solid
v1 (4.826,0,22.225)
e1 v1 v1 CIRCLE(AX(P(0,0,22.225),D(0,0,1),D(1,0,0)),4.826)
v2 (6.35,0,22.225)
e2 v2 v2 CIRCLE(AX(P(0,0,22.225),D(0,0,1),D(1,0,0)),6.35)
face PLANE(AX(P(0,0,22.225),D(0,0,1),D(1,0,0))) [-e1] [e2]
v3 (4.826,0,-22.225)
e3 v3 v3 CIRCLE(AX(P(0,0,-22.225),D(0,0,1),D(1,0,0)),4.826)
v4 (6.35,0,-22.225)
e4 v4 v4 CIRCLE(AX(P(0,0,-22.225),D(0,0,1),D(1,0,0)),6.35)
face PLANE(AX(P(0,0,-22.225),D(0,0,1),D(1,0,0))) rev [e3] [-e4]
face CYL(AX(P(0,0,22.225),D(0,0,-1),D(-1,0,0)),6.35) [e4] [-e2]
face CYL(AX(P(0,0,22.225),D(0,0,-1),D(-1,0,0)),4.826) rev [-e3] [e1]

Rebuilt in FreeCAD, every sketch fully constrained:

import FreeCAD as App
import Part
import Sketcher
Q = App.Units.Quantity

doc = App.newDocument("Part")
body = doc.addObject("PartDesign::Body", "Body")

# Sketch on XY plane
sketch1 = body.newObject("Sketcher::SketchObject", "Sketch")
sketch1.AttachmentSupport = (doc.getObject("XY_Plane"), [""])
sketch1.MapMode = "FlatFace"
sketch1.addGeometry(Part.Circle(App.Vector(0, 0, 0), App.Vector(0, 0, 1), 6.3), False)
sketch1.addGeometry(Part.Circle(App.Vector(0, 0, 0), App.Vector(0, 0, 1), 4.8), False)
sketch1.addConstraint(Sketcher.Constraint("Coincident", 0, 3, -1, 1))
sketch1.addConstraint(Sketcher.Constraint("Coincident", 1, 3, -1, 1))
sketch1.addConstraint(Sketcher.Constraint("Diameter", 0, Q("0.5 in")))
sketch1.addConstraint(Sketcher.Constraint("Diameter", 1, Q("0.38 in")))
pad1 = body.newObject("PartDesign::Pad", "Pad")
pad1.Profile = sketch1
pad1.Length = Q("1.75 in")
pad1.Midplane = True

doc.recompute()
